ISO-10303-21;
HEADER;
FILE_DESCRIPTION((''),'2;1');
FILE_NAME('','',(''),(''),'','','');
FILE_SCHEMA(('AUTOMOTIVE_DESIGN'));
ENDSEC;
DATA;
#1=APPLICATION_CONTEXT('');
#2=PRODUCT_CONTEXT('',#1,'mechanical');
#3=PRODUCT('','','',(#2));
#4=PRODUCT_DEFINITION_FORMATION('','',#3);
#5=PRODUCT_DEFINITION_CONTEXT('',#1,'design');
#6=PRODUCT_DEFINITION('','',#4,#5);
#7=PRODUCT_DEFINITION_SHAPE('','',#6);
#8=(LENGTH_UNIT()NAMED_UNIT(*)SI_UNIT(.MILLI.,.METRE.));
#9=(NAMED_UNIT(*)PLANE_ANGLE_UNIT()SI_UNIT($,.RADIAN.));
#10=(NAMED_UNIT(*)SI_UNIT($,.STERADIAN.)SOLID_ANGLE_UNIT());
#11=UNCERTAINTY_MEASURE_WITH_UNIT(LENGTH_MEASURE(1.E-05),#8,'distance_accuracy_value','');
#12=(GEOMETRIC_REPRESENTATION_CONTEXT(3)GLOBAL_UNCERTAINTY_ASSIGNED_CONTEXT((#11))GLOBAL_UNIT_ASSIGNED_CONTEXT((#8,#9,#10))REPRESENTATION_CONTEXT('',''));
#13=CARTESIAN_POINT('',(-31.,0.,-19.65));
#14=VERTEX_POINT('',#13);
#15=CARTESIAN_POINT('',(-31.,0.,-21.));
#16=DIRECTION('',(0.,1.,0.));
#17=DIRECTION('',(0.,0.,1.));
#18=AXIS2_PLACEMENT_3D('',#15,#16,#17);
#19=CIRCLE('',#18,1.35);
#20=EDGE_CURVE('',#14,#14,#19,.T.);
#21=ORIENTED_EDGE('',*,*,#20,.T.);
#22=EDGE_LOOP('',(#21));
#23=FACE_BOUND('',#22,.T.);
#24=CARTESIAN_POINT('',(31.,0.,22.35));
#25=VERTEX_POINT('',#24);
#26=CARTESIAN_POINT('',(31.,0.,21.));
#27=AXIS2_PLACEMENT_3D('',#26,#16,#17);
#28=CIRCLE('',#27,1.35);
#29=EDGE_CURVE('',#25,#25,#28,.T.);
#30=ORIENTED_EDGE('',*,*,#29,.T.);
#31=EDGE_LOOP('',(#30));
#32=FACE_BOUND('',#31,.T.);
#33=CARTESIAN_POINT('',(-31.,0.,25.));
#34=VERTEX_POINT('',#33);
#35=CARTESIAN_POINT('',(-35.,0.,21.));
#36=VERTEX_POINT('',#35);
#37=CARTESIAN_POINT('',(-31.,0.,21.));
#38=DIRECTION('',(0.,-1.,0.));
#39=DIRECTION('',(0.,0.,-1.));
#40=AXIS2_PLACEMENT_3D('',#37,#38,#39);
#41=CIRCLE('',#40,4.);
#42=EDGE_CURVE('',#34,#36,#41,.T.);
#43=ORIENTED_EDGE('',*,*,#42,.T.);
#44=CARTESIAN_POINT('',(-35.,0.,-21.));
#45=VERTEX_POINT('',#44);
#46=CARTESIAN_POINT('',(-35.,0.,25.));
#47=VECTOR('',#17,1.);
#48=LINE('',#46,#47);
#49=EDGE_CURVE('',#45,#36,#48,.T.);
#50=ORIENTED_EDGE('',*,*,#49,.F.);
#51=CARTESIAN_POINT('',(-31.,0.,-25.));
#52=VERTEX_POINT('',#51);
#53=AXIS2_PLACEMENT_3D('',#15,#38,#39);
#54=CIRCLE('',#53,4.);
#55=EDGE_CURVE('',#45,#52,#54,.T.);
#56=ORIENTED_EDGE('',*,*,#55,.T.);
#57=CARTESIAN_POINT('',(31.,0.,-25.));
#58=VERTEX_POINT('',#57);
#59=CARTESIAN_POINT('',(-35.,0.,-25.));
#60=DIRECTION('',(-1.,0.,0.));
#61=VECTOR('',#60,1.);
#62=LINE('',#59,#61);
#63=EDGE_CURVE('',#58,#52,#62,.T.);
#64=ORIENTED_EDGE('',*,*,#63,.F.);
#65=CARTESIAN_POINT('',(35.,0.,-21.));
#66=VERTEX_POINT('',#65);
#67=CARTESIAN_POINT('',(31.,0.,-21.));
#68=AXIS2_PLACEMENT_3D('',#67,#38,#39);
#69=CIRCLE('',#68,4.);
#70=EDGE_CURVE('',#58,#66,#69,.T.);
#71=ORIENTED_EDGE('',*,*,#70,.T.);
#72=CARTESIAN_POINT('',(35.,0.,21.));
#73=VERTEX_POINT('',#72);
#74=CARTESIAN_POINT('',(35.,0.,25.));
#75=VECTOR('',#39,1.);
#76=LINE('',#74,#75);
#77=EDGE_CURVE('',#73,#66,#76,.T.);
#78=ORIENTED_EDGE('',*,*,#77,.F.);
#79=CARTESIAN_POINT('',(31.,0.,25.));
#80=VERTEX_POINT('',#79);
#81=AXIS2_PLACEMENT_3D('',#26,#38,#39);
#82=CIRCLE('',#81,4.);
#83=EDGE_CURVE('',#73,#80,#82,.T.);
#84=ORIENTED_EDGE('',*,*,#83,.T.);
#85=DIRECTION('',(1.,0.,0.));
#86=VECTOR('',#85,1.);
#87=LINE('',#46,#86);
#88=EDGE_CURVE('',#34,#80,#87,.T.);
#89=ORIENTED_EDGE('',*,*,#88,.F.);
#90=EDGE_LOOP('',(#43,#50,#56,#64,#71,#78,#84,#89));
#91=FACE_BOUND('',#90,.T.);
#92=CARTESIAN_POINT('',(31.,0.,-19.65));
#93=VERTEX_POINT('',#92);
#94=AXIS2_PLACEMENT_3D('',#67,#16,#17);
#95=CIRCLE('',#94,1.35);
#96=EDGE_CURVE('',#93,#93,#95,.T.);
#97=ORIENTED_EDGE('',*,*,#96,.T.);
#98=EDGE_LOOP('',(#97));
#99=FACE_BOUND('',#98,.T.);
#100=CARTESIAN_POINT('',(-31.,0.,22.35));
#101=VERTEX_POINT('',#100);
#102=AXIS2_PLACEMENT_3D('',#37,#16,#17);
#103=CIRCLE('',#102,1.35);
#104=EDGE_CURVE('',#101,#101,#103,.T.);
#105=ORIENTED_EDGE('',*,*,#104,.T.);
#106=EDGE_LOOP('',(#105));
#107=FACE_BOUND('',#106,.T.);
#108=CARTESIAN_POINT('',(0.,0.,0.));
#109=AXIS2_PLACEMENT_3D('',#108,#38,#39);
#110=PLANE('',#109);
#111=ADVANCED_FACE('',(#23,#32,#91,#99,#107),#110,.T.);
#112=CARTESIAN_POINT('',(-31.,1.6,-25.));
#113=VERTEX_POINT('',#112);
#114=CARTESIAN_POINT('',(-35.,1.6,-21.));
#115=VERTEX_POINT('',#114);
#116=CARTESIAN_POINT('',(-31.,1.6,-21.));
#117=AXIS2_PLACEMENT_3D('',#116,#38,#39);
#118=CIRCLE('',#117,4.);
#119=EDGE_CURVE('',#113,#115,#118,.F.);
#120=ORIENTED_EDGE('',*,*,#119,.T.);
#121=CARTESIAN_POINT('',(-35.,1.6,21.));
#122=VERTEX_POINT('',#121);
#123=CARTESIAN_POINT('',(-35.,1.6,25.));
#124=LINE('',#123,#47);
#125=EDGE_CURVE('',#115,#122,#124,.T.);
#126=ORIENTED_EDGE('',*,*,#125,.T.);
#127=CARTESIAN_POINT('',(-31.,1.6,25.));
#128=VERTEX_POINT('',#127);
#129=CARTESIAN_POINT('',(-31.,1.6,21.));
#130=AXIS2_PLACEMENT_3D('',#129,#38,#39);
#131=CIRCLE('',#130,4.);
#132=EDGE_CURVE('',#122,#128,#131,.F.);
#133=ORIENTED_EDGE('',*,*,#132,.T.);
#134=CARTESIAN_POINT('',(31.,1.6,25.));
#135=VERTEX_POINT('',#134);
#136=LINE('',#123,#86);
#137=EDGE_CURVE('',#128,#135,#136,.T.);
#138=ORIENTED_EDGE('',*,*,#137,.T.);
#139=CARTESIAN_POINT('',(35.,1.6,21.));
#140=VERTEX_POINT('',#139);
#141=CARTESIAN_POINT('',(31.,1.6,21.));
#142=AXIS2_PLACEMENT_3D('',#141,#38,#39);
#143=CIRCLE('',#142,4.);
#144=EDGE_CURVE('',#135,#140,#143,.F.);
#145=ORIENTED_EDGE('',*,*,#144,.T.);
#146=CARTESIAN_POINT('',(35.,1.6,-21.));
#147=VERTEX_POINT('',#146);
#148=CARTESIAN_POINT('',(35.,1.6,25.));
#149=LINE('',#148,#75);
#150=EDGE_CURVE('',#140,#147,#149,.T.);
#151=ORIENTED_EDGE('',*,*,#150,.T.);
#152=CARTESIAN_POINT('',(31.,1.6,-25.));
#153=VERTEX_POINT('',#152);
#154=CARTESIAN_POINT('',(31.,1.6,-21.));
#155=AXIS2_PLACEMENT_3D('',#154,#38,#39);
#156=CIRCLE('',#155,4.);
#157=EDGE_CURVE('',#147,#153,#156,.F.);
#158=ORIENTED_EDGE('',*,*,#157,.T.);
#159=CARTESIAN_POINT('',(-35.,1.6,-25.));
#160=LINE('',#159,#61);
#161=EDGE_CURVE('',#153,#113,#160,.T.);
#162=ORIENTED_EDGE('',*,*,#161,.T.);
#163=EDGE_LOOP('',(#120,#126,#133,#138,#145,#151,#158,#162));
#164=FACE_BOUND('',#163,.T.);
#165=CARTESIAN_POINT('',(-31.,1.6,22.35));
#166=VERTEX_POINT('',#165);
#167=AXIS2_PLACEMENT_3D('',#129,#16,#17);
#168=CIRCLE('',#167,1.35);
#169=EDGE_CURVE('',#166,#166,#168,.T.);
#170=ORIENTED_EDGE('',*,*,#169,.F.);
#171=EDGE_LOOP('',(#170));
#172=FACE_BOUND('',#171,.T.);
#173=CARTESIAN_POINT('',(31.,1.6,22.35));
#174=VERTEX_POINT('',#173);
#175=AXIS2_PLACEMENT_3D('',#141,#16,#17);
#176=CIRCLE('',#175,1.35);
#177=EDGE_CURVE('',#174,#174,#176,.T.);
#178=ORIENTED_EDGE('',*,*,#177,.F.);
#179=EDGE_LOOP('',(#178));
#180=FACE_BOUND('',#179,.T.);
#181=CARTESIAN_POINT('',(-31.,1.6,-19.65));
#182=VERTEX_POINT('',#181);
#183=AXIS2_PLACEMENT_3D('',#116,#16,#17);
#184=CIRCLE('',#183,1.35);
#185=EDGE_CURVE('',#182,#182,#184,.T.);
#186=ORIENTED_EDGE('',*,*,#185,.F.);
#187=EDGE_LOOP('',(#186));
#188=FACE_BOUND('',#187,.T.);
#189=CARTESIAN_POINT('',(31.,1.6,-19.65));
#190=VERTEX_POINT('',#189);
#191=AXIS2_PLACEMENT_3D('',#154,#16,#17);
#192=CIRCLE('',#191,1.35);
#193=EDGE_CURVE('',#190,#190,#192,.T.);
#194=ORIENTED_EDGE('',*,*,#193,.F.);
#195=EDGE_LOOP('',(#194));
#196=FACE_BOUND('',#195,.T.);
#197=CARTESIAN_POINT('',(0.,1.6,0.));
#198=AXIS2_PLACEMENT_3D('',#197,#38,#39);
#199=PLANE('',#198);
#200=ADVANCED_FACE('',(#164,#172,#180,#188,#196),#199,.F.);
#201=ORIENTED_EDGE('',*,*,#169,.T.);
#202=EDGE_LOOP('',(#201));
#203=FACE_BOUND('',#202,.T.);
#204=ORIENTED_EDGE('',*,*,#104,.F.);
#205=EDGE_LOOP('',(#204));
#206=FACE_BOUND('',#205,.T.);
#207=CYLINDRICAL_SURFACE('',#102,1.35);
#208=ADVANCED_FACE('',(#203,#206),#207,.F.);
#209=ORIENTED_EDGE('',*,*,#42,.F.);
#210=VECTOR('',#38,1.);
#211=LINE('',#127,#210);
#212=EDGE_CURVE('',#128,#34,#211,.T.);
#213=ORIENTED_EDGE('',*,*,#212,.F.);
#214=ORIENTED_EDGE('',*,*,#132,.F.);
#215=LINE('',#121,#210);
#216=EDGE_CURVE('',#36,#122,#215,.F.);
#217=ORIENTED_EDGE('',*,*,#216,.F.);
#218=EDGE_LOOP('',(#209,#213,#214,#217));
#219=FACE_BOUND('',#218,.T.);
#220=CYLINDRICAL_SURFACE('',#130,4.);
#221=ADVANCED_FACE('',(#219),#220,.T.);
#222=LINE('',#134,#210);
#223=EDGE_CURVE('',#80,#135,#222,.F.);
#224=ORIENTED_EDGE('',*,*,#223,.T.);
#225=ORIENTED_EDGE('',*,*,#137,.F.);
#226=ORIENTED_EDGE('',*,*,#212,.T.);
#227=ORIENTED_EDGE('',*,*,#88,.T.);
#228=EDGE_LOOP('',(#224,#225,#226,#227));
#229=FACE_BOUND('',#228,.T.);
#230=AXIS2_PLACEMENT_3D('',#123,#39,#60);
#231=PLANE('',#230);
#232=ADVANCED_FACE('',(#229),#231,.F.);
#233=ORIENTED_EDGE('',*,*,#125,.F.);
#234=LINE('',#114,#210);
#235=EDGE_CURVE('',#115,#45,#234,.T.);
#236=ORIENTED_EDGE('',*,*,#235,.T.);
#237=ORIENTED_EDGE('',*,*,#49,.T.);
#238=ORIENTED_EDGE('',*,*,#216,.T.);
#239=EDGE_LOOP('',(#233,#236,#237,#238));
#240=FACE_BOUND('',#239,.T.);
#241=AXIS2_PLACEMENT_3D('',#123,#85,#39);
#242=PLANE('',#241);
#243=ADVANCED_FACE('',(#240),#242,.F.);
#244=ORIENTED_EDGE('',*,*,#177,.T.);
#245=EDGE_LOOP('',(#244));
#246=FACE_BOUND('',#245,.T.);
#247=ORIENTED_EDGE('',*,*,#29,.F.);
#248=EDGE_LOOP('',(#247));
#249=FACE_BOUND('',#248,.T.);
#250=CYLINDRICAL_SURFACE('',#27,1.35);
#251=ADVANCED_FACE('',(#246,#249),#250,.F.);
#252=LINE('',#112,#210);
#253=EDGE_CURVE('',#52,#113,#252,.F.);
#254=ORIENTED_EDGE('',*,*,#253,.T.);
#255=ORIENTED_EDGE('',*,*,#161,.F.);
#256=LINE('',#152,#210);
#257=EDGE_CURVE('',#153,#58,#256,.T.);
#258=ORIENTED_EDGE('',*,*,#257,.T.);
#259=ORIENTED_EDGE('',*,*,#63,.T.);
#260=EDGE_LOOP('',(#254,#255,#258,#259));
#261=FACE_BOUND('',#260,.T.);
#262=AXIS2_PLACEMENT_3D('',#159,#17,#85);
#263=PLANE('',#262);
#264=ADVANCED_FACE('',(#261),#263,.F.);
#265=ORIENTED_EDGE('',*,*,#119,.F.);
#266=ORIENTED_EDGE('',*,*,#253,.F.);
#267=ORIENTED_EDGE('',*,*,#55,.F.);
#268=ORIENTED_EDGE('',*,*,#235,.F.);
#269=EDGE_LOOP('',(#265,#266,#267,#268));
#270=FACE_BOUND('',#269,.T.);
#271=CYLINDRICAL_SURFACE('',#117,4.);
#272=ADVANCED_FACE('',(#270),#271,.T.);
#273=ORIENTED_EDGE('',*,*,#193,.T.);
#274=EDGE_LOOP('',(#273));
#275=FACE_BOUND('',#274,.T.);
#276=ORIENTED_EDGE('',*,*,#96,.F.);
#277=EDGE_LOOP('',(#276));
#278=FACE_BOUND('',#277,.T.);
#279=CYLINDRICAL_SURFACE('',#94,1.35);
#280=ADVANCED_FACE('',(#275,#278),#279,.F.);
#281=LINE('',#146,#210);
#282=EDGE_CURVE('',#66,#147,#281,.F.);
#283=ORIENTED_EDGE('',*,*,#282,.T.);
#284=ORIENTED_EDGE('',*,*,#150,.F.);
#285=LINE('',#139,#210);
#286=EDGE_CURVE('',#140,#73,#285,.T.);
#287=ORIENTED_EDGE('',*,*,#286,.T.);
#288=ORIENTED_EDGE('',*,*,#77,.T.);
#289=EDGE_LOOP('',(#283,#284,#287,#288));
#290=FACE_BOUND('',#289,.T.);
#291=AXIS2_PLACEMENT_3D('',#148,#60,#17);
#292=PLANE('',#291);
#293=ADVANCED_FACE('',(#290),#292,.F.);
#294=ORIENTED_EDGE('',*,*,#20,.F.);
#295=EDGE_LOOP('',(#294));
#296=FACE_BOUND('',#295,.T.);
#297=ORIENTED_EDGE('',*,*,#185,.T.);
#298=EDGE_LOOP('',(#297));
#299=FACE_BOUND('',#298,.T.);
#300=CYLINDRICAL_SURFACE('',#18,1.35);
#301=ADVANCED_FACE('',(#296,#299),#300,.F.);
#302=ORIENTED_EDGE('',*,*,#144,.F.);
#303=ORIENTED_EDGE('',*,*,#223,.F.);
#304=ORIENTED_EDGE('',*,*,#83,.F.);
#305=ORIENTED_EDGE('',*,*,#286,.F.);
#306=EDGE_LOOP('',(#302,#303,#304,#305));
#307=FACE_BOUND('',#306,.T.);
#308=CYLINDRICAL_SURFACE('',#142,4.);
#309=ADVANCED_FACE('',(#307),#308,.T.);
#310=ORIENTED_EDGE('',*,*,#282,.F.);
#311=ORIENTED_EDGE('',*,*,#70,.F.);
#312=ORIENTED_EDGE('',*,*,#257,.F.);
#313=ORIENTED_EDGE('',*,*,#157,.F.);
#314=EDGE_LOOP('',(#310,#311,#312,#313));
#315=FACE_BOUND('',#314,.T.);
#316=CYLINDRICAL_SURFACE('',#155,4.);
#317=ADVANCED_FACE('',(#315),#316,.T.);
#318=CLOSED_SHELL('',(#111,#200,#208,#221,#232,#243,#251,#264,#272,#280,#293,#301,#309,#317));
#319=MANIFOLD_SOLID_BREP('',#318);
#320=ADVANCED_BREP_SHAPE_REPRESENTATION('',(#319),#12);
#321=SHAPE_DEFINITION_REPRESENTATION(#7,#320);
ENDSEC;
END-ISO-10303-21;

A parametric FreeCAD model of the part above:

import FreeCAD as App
import Part
import Sketcher
from FreeCAD import Vector


def edges_at(feature, points):
    """Names of the edges that pass closest to the given points."""
    edges = feature.Shape.Edges
    near = lambda p: min(range(len(edges)), key=lambda i: edges[i].distToShape(Part.Vertex(*p))[0])
    return sorted({f"Edge{near(p) + 1}" for p in points})

doc = App.newDocument("Part")
body = doc.addObject("PartDesign::Body", "Body")

sketch1 = body.newObject("Sketcher::SketchObject", "Sketch")
sketch1.AttachmentSupport = (doc.getObject("XZ_Plane"), [""])
sketch1.MapMode = "FlatFace"
sketch1.addGeometry([
    Part.LineSegment(Vector(-35, -25, 0), Vector(-35, 25, 0)),
    Part.LineSegment(Vector(-35, 25, 0), Vector(35, 25, 0)),
    Part.LineSegment(Vector(35, 25, 0), Vector(35, -25, 0)),
    Part.LineSegment(Vector(35, -25, 0), Vector(-35, -25, 0)),
], False)
sketch1.addConstraint([
    Sketcher.Constraint("Coincident", 0, 2, 1, 1),
    Sketcher.Constraint("Coincident", 1, 2, 2, 1),
    Sketcher.Constraint("Coincident", 2, 2, 3, 1),
    Sketcher.Constraint("Coincident", 3, 2, 0, 1),
    Sketcher.Constraint("Vertical", 0),
    Sketcher.Constraint("Horizontal", 1),
    Sketcher.Constraint("Vertical", 2),
    Sketcher.Constraint("Horizontal", 3),
    Sketcher.Constraint("Symmetric", 0, 2, 2, 2, -1, 1),
    Sketcher.Constraint("DistanceX", 1, 1, 1, 2, 70.0),
    Sketcher.Constraint("DistanceY", 0, 1, 0, 2, 50.0),
])
pad1 = body.newObject("PartDesign::Pad", "Pad")
pad1.Profile = sketch1
pad1.Length = 1.6
pad1.Reversed = True

sketch2 = body.newObject("Sketcher::SketchObject", "Sketch001")
sketch2.AttachmentSupport = (doc.getObject("XZ_Plane"), [""])
sketch2.MapMode = "FlatFace"
sketch2.AttachmentOffset = App.Placement(Vector(0, 0, -1.6), App.Rotation())
sketch2.addGeometry([
    Part.Circle(Vector(-31, -21, 0), Vector(0, 0, 1), 1.4),
    Part.Circle(Vector(31, -21, 0), Vector(0, 0, 1), 1.4),
    Part.Circle(Vector(31, 21, 0), Vector(0, 0, 1), 1.4),
    Part.Circle(Vector(-31, 21, 0), Vector(0, 0, 1), 1.4),
], False)
sketch2.addConstraint([
    Sketcher.Constraint("Equal", 0, 1),
    Sketcher.Constraint("Equal", 1, 2),
    Sketcher.Constraint("Equal", 2, 3),
    Sketcher.Constraint("Symmetric", 0, 3, 2, 3, -1, 1),
    Sketcher.Constraint("Symmetric", 1, 3, 3, 3, -1, 1),
    Sketcher.Constraint("Symmetric", 0, 3, 1, 3, -2),
    Sketcher.Constraint("Diameter", 0, 2.7),
    Sketcher.Constraint("DistanceX", 0, 3, -1, 1, 31.0),
    Sketcher.Constraint("DistanceY", 0, 3, -1, 1, 21.0),
])
pocket1 = body.newObject("PartDesign::Pocket", "Pocket")
pocket1.Profile = sketch2
pocket1.Type = "ThroughAll"
pocket1.Reversed = True
doc.recompute()

fillet = body.newObject("PartDesign::Fillet", "Fillet")
fillet.Base = (pocket1, edges_at(pocket1, [
    (35, 0.8, 25),
    (-35, 0.8, 25),
    (-35, 0.8, -25),
    (35, 0.8, -25),
]))
fillet.Radius = 4

doc.recompute()
